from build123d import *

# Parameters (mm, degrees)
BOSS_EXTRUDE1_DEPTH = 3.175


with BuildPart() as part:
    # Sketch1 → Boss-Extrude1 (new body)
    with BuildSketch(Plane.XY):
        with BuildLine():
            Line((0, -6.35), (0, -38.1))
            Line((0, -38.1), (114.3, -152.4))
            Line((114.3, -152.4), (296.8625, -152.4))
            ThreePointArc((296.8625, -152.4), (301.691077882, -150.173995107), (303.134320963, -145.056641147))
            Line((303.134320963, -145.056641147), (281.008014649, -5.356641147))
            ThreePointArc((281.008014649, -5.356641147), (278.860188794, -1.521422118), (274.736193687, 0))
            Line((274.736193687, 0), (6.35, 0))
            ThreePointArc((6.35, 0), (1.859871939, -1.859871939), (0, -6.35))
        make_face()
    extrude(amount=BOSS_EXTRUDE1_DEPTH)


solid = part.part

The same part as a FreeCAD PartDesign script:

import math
import FreeCAD as App
import Part
import Sketcher

V = App.Vector
Q = App.Units.Quantity

doc = App.newDocument("Part")
body = doc.addObject("PartDesign::Body", "Body")

sketch1 = doc.addObject("Sketcher::SketchObject", "Sketch")
body.addObject(sketch1)
sketch1.AttachmentSupport = (doc.XY_Plane, [""])
sketch1.MapMode = "FlatFace"
sketch1.addGeometry(Part.LineSegment(V(0, -6, 0), V(0, -38, 0)), False)
sketch1.addGeometry(Part.LineSegment(V(0, -38, 0), V(114, -152, 0)), False)
sketch1.addGeometry(Part.LineSegment(V(114, -152, 0), V(297, -152, 0)), False)
sketch1.addGeometry(Part.ArcOfCircle(Part.Circle(V(297, -146, 0), V(0, 0, 1), 6), math.radians(-90), math.radians(9)), False)
sketch1.addGeometry(Part.LineSegment(V(303, -145, 0), V(281, -5, 0)), False)
sketch1.addGeometry(Part.ArcOfCircle(Part.Circle(V(275, -6, 0), V(0, 0, 1), 6), math.radians(9), math.radians(90)), False)
sketch1.addGeometry(Part.LineSegment(V(275, 0, 0), V(6, 0, 0)), False)
sketch1.addGeometry(Part.ArcOfCircle(Part.Circle(V(6, -6, 0), V(0, 0, 1), 6), math.radians(90), math.radians(180)), False)
sketch1.addConstraint(Sketcher.Constraint("Coincident", 0, 2, 1, 1))
sketch1.addConstraint(Sketcher.Constraint("Coincident", 1, 2, 2, 1))
sketch1.addConstraint(Sketcher.Constraint("Tangent", 2, 2, 3, 1))
sketch1.addConstraint(Sketcher.Constraint("Tangent", 3, 2, 4, 1))
sketch1.addConstraint(Sketcher.Constraint("Tangent", 4, 2, 5, 1))
sketch1.addConstraint(Sketcher.Constraint("Tangent", 5, 2, 6, 1))
sketch1.addConstraint(Sketcher.Constraint("Tangent", 6, 2, 7, 1))
sketch1.addConstraint(Sketcher.Constraint("Tangent", 7, 2, 0, 1))
sketch1.addConstraint(Sketcher.Constraint("Vertical", 0))
sketch1.addConstraint(Sketcher.Constraint("Horizontal", 2))
sketch1.addConstraint(Sketcher.Constraint("Horizontal", 6))
sketch1.addConstraint(Sketcher.Constraint("Equal", 3, 5))
sketch1.addConstraint(Sketcher.Constraint("Equal", 5, 7))
sketch1.addConstraint(Sketcher.Constraint("PointOnObject", 0, 2, -2))
sketch1.addConstraint(Sketcher.Constraint("PointOnObject", 5, 2, -1))
sketch1.addConstraint(Sketcher.Constraint("Radius", 3, Q("0.25 in")))
sketch1.addConstraint(Sketcher.Constraint("DistanceY", 1, 2, -1, 1, Q("6 in")))
sketch1.addConstraint(Sketcher.Constraint("Angle", 1, Q("-45 deg")))
sketch1.addConstraint(Sketcher.Constraint("Angle", 4, Q("99 deg")))
sketch1.addConstraint(Sketcher.Constraint("DistanceY", 0, 2, 0, 1, Q("1.25 in")))
sketch1.addConstraint(Sketcher.Constraint("DistanceX", 2, 1, 2, 2, Q("7.1875 in")))
pad1 = doc.addObject("PartDesign::Pad", "Pad")
body.addObject(pad1)
pad1.Profile = sketch1
pad1.Length = Q("0.125 in")

doc.recompute()
